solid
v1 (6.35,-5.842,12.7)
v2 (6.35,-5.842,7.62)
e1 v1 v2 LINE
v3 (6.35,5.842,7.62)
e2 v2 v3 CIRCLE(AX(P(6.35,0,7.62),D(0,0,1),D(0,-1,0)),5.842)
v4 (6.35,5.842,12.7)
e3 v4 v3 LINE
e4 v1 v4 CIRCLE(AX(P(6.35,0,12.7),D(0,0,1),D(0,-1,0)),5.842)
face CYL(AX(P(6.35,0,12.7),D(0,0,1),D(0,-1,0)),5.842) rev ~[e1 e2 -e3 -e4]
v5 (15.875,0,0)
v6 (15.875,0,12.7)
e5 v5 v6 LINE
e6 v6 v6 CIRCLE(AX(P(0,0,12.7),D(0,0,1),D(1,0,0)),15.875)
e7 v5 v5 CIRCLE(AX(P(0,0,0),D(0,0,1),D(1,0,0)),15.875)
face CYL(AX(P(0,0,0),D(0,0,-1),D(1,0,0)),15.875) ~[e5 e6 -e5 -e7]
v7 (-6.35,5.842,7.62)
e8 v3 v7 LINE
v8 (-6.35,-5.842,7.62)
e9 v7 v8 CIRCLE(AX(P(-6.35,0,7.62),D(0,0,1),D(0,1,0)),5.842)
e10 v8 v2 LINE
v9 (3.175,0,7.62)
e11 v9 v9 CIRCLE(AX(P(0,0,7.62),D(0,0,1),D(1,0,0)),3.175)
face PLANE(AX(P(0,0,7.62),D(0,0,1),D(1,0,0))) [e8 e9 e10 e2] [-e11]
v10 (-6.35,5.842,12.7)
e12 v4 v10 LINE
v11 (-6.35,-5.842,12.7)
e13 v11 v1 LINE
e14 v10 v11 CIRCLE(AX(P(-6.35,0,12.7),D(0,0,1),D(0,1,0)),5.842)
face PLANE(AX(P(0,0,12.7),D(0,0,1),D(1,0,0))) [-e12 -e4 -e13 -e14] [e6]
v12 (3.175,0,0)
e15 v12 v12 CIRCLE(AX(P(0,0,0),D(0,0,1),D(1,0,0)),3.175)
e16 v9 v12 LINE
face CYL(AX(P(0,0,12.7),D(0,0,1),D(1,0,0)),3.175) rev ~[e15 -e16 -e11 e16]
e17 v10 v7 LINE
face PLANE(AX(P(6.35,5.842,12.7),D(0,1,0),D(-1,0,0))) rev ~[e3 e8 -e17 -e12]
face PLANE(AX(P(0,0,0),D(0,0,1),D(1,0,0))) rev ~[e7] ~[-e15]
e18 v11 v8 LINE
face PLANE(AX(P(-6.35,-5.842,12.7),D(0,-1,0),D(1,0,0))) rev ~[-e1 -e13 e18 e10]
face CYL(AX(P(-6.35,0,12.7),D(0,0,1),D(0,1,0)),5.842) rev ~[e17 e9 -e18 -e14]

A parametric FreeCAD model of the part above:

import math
import FreeCAD as App
import Part
import Sketcher
Q = App.Units.Quantity

doc = App.newDocument("Part")
body = doc.addObject("PartDesign::Body", "Body")

# Sketch on XY plane
sketch1 = doc.addObject("Sketcher::SketchObject", "Sketch")
body.addObject(sketch1)
sketch1.AttachmentSupport = (doc.XY_Plane, [""])
sketch1.MapMode = "FlatFace"
sketch1.addGeometry(Part.Circle(App.Vector(0, 0, 0), App.Vector(0, 0, 1), 16), False)
sketch1.addConstraint([
    Sketcher.Constraint("Coincident", 0, 3, -1, 1),
    Sketcher.Constraint("Diameter", 0, Q("1.25 in")),
])
pad1 = doc.addObject("PartDesign::Pad", "Pad")
body.addObject(pad1)
pad1.Profile = sketch1
pad1.Length = Q("0.5 in")

# Sketch on XY plane
sketch2 = doc.addObject("Sketcher::SketchObject", "Sketch001")
body.addObject(sketch2)
sketch2.AttachmentSupport = (doc.XY_Plane, [""])
sketch2.MapMode = "FlatFace"
sketch2.AttachmentOffset = App.Placement(App.Vector(0, 0, 0.5 * 25.4), App.Rotation())
sketch2.addGeometry(Part.Circle(App.Vector(0, 0, 0), App.Vector(0, 0, 1), 3.2), False)
sketch2.addConstraint([
    Sketcher.Constraint("Coincident", 0, 3, -1, 1),
    Sketcher.Constraint("Diameter", 0, Q("0.25 in")),
])
pocket1 = doc.addObject("PartDesign::Pocket", "Pocket")
body.addObject(pocket1)
pocket1.Profile = sketch2
pocket1.Type = "ThroughAll"

# Sketch on XY plane
sketch3 = doc.addObject("Sketcher::SketchObject", "Sketch002")
body.addObject(sketch3)
sketch3.AttachmentSupport = (doc.XY_Plane, [""])
sketch3.MapMode = "FlatFace"
sketch3.AttachmentOffset = App.Placement(App.Vector(0, 0, 0.5 * 25.4), App.Rotation())
sketch3.addGeometry([
    Part.LineSegment(App.Vector(6, 6, 0), App.Vector(-6, 6, 0)),
    Part.ArcOfCircle(Part.Circle(App.Vector(-6, 0, 0), App.Vector(0, 0, 1), 6), math.radians(90), math.radians(270)),
    Part.LineSegment(App.Vector(-6, -6, 0), App.Vector(6, -6, 0)),
    Part.ArcOfCircle(Part.Circle(App.Vector(6, 0, 0), App.Vector(0, 0, 1), 6), math.radians(-90), math.radians(90)),
], False)
sketch3.addConstraint([
    Sketcher.Constraint("Tangent", 0, 2, 1, 1),
    Sketcher.Constraint("Tangent", 1, 2, 2, 1),
    Sketcher.Constraint("Tangent", 2, 2, 3, 1),
    Sketcher.Constraint("Tangent", 3, 2, 0, 1),
    Sketcher.Constraint("Horizontal", 0),
    Sketcher.Constraint("Horizontal", 2),
    Sketcher.Constraint("Symmetric", 1, 3, 3, 3, -1, 1),
    Sketcher.Constraint("Radius", 1, Q("0.23 in")),
    Sketcher.Constraint("DistanceX", 0, 2, 0, 1, Q("0.5 in")),
])
pocket2 = doc.addObject("PartDesign::Pocket", "Pocket001")
body.addObject(pocket2)
pocket2.Profile = sketch3
pocket2.Length = Q("0.2 in")

doc.recompute()
